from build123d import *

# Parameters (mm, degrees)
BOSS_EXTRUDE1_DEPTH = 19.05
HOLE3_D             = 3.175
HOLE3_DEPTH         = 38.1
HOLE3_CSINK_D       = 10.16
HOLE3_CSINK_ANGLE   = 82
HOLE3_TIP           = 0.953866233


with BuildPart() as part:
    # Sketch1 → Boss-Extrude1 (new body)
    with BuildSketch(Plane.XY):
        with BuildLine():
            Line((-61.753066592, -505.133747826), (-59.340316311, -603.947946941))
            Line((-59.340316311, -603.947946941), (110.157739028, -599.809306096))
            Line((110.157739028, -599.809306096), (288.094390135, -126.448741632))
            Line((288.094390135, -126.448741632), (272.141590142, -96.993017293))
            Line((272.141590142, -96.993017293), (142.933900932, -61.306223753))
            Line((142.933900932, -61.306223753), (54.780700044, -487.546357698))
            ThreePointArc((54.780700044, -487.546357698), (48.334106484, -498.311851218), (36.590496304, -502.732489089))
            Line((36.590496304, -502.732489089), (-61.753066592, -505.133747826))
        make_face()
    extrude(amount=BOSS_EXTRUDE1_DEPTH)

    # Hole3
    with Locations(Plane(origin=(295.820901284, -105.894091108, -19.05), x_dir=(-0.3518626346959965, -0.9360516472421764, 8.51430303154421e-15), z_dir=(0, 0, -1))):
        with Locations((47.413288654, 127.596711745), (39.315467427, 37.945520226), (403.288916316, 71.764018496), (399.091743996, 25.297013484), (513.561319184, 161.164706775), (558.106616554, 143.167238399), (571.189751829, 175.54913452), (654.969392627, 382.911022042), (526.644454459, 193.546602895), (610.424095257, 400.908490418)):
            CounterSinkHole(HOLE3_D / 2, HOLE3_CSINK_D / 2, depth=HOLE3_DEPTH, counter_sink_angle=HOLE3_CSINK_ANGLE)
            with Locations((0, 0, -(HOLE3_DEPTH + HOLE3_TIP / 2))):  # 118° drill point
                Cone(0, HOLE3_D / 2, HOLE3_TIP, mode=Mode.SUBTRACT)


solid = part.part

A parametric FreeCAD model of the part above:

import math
import FreeCAD as App
import Part
import Sketcher
Q = App.Units.Quantity

doc = App.newDocument("Part")
body = doc.addObject("PartDesign::Body", "Body")

# Sketch on XY plane
sketch1 = body.newObject("Sketcher::SketchObject", "Sketch")
sketch1.AttachmentSupport = (doc.getObject("XY_Plane"), [""])
sketch1.MapMode = "FlatFace"
sketch1.addGeometry([
    Part.LineSegment(App.Vector(-61.753067, -505.133748, 0), App.Vector(-59.340316, -603.947947, 0)),  # 0
    Part.LineSegment(App.Vector(-59.340316, -603.947947, 0), App.Vector(110.157739, -599.809306, 0)),  # 1
    Part.LineSegment(App.Vector(110.157739, -599.809306, 0), App.Vector(288.09439, -126.448742, 0)),  # 2
    Part.LineSegment(App.Vector(288.09439, -126.448742, 0), App.Vector(272.14159, -96.993017, 0)),  # 3
    Part.LineSegment(App.Vector(272.14159, -96.993017, 0), App.Vector(142.933901, -61.306224, 0)),  # 4
    Part.LineSegment(App.Vector(142.933901, -61.306224, 0), App.Vector(54.7807, -487.546358, 0)),  # 5
    Part.ArcOfCircle(Part.Circle(App.Vector(36.12549, -483.688165, 0), App.Vector(0, 0, 1), 19.05), math.radians(-88.601285), math.radians(-11.684933)),  # 6
    Part.LineSegment(App.Vector(36.590496, -502.732489, 0), App.Vector(-61.753067, -505.133748, 0)),  # 7
], False)
sketch1.addConstraint([
    Sketcher.Constraint("Coincident", 0, 2, 1, 1),
    Sketcher.Constraint("Coincident", 1, 2, 2, 1),
    Sketcher.Constraint("Coincident", 2, 2, 3, 1),
    Sketcher.Constraint("Coincident", 3, 2, 4, 1),
    Sketcher.Constraint("Coincident", 4, 2, 5, 1),
    Sketcher.Constraint("Coincident", 5, 2, 6, 2),
    Sketcher.Constraint("Coincident", 6, 1, 7, 1),
    Sketcher.Constraint("Coincident", 7, 2, 0, 1),
    Sketcher.Constraint("Radius", 6, Q("0.75 in")),
    Sketcher.Constraint("DistanceX", 1, 2, 4, 2, Q("1.2904001 in")),
    Sketcher.Constraint("DistanceX", -1, 1, 4, 2, 142.933901),
    Sketcher.Constraint("DistanceX", -1, 1, 5, 2, 54.7807),
    Sketcher.Constraint("DistanceX", 6, 3, 2, 2, 251.9689),
    Sketcher.Constraint("DistanceX", 3, 2, 2, 2, 15.9528),
    Sketcher.Constraint("DistanceY", 0, 2, 7, 2, 98.814199),
    Sketcher.Constraint("Distance", 0, 98.843651),
    Sketcher.Constraint("Distance", 3, 33.498232),
    Sketcher.Constraint("Distance", 4, 134.045418),
    Sketcher.Constraint("DistanceX", -1, 1, 6, 3, 36.12549),
    Sketcher.Constraint("DistanceY", 2, 2, -1, 1, 126.448742),
    Sketcher.Constraint("DistanceY", 6, 1, -1, 1, 502.732489),
    Sketcher.Constraint("DistanceY", 0, 2, 6, 3, 120.259782),
    Sketcher.Constraint("DistanceY", 1, 2, 6, 3, 116.121141),
    Sketcher.Constraint("DistanceY", 1, 2, 3, 2, 502.816289),
    Sketcher.Constraint("Distance", 1, 169.548574),
])
pad1 = body.newObject("PartDesign::Pad", "Pad")
pad1.Profile = sketch1
pad1.Length = Q("0.75 in")

# Sketch on XY plane
sketch2 = body.newObject("Sketcher::SketchObject", "Sketch001")
sketch2.AttachmentSupport = (doc.getObject("XY_Plane"), [""])
sketch2.MapMode = "FlatFace"
sketch2.AttachmentOffset = App.Placement(App.Vector(0, 0, -0.75 * 25.4), App.Rotation())
sketch2.addGeometry([
    Part.Circle(App.Vector(159.700824, -105.378863, 0), App.Vector(0, 0, 1), 1.5875),  # 0
    Part.Circle(App.Vector(246.468291, -129.343789, 0), App.Vector(0, 0, 1), 1.5875),  # 1
    Part.Circle(App.Vector(86.743773, -458.142269, 0), App.Vector(0, 0, 1), 1.5875),  # 2
    Part.Circle(App.Vector(131.716117, -470.563502, 0), App.Vector(0, 0, 1), 1.5875),  # 3
    Part.Circle(App.Vector(-35.740627, -529.906171, 0), App.Vector(0, 0, 1), 1.5875),  # 4
    Part.Circle(App.Vector(-34.567893, -577.935507, 0), App.Vector(0, 0, 1), 1.5875),  # 5
    Part.Circle(App.Vector(-69.482486, -578.788018, 0), App.Vector(0, 0, 1), 1.5875),  # 6
    Part.Circle(App.Vector(-293.062848, -584.247189, 0), App.Vector(0, 0, 1), 1.5875),  # 7
    Part.Circle(App.Vector(-70.655221, -530.758682, 0), App.Vector(0, 0, 1), 1.5875),  # 8
    Part.Circle(App.Vector(-294.235582, -536.217853, 0), App.Vector(0, 0, 1), 1.5875),  # 9
], False)
sketch2.addConstraint([
    Sketcher.Constraint("Equal", 0, 1),
    Sketcher.Constraint("Equal", 1, 2),
    Sketcher.Constraint("Equal", 2, 3),
    Sketcher.Constraint("Equal", 3, 4),
    Sketcher.Constraint("Equal", 4, 5),
    Sketcher.Constraint("Equal", 5, 6),
    Sketcher.Constraint("Equal", 6, 7),
    Sketcher.Constraint("Equal", 7, 8),
    Sketcher.Constraint("Equal", 8, 9),
    Sketcher.Constraint("Diameter", 0, Q("0.125 in")),
    Sketcher.Constraint("DistanceY", 3, 3, -1, 1, 470.563502),
    Sketcher.Constraint("DistanceX", 4, 3, 2, 3, 122.4844),
    Sketcher.Constraint("DistanceX", -1, 1, 1, 3, 246.468291),
    Sketcher.Constraint("DistanceY", 1, 3, -1, 1, 129.343789),
    Sketcher.Constraint("DistanceY", 2, 3, -1, 1, 458.142269),
    Sketcher.Constraint("DistanceY", 4, 3, -1, 1, 529.906171),
    Sketcher.Constraint("DistanceY", 6, 3, -1, 1, 578.788018),
    Sketcher.Constraint("DistanceY", 7, 3, -1, 1, 584.247189),
    Sketcher.Constraint("DistanceX", 8, 3, -1, 1, 70.655221),
    Sketcher.Constraint("DistanceX", 2, 3, 0, 3, 72.957052),
    Sketcher.Constraint("DistanceY", 3, 3, 0, 3, 365.184639),
    Sketcher.Constraint("DistanceY", 5, 3, 2, 3, 119.793238),
    Sketcher.Constraint("DistanceX", 5, 3, 3, 3, 166.28401),
    Sketcher.Constraint("DistanceX", 6, 3, 4, 3, 33.741859),
    Sketcher.Constraint("DistanceX", 7, 3, 6, 3, 223.580362),
    Sketcher.Constraint("DistanceY", 8, 3, 4, 3, 0.852511),
    Sketcher.Constraint("DistanceX", 8, 3, 3, 3, 202.371338),
    Sketcher.Constraint("DistanceX", 9, 3, 8, 3, 223.580362),
    Sketcher.Constraint("DistanceY", 9, 3, 8, 3, 5.459171),
    Sketcher.Constraint("DistanceX", -1, 1, 0, 3, 159.700824),
])
doc.recompute()
hole = body.newObject("PartDesign::Hole", "Hole")
hole.Profile = sketch2
hole.ThreadType = "None"
hole.Diameter = Q("0.125 in")
hole.DepthType = "Dimension"
hole.Depth = Q("1.5 in")
hole.DrillPoint = "Angled"
hole.DrillPointAngle = 118
hole.HoleCutType = "Countersink"
hole.HoleCutDiameter = Q("0.4 in")
hole.HoleCutCountersinkAngle = 82
hole.Reversed = True

doc.recompute()
